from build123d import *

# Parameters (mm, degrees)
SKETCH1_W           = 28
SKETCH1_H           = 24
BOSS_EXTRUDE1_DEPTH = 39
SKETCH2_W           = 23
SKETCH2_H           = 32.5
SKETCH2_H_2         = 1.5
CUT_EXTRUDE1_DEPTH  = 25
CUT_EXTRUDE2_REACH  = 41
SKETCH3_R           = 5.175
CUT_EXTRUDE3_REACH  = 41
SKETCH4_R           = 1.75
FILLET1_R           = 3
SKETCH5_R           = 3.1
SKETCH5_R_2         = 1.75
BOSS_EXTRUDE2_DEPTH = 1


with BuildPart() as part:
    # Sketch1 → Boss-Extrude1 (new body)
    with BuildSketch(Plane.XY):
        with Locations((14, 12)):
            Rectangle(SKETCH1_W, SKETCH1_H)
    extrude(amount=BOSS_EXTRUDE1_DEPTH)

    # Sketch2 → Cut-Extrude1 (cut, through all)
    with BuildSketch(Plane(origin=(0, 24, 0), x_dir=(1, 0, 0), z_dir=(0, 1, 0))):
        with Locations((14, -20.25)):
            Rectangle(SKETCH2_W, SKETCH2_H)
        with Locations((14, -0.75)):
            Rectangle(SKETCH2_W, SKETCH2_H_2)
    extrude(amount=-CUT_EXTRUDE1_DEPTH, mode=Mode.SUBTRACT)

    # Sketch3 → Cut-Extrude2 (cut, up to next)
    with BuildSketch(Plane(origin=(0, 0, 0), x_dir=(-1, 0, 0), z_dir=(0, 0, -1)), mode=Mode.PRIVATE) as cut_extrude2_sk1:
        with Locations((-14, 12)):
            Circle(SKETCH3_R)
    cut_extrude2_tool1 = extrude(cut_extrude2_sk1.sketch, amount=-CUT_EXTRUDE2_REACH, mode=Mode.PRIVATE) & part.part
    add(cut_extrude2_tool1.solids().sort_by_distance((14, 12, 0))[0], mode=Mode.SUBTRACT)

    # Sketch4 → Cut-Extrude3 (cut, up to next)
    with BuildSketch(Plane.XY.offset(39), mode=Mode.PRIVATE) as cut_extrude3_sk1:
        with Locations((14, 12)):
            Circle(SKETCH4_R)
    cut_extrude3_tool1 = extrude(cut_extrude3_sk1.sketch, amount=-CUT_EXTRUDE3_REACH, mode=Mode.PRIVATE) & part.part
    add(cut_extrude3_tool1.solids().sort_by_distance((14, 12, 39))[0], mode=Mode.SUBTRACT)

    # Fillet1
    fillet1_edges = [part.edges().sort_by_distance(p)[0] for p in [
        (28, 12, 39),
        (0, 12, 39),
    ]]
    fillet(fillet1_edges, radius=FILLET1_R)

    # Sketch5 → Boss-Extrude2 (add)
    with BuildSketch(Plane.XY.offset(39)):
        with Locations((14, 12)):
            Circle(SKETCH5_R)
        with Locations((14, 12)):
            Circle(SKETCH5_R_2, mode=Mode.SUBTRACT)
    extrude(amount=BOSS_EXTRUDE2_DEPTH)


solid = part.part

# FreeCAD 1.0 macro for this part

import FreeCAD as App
import Part
import Sketcher

V = App.Vector


def edges_at(feature, points):
    """Names of the edges that pass closest to the given points."""
    edges = feature.Shape.Edges
    near = lambda p: min(range(len(edges)), key=lambda i: edges[i].distToShape(Part.Vertex(*p))[0])
    return sorted({f"Edge{near(p) + 1}" for p in points})


def add_polygon(sketch, points):
    """Adds a closed chain of lines whose ends are joined by coincident constraints."""
    first, n = sketch.GeometryCount, len(points)
    for a, b in zip(points, points[1:] + points[:1]):
        sketch.addGeometry(Part.LineSegment(App.Vector(*a, 0), App.Vector(*b, 0)), False)
    for i in range(n):
        sketch.addConstraint(Sketcher.Constraint("Coincident", first + i, 2, first + (i + 1) % n, 1))

doc = App.newDocument("Part")
body = doc.addObject("PartDesign::Body", "Body")

sketch1 = body.newObject("Sketcher::SketchObject", "Sketch")
sketch1.AttachmentSupport = (doc.getObject("XY_Plane"), [""])
sketch1.MapMode = "FlatFace"
add_polygon(sketch1, [(0, 24), (0, 0), (28, 0), (28, 24)])
sketch1.addConstraint(Sketcher.Constraint("Vertical", 0))
sketch1.addConstraint(Sketcher.Constraint("Horizontal", 1))
sketch1.addConstraint(Sketcher.Constraint("Vertical", 2))
sketch1.addConstraint(Sketcher.Constraint("Horizontal", 3))
sketch1.addConstraint(Sketcher.Constraint("Coincident", 0, 2, -1, 1))
sketch1.addConstraint(Sketcher.Constraint("DistanceX", 1, 1, 1, 2, 28.0))
sketch1.addConstraint(Sketcher.Constraint("DistanceY", 0, 2, 0, 1, 24.0))
pad1 = body.newObject("PartDesign::Pad", "Pad")
pad1.Profile = sketch1
pad1.Length = 39

sketch2 = body.newObject("Sketcher::SketchObject", "Sketch001")
sketch2.AttachmentSupport = (doc.getObject("XZ_Plane"), [""])
sketch2.MapMode = "FlatFace"
sketch2.AttachmentOffset = App.Placement(V(0, 0, -24), App.Rotation())
add_polygon(sketch2, [(2.5, 4), (2.5, 36.5), (25.5, 36.5), (25.5, 4)])
add_polygon(sketch2, [(2.5, 0), (2.5, 1.5), (25.5, 1.5), (25.5, 0)])
sketch2.addConstraint(Sketcher.Constraint("Vertical", 0))
sketch2.addConstraint(Sketcher.Constraint("Horizontal", 1))
sketch2.addConstraint(Sketcher.Constraint("Vertical", 2))
sketch2.addConstraint(Sketcher.Constraint("Horizontal", 3))
sketch2.addConstraint(Sketcher.Constraint("Vertical", 4))
sketch2.addConstraint(Sketcher.Constraint("Horizontal", 5))
sketch2.addConstraint(Sketcher.Constraint("Vertical", 6))
sketch2.addConstraint(Sketcher.Constraint("Horizontal", 7))
sketch2.addConstraint(Sketcher.Constraint("PointOnObject", 6, 2, -1))
sketch2.addConstraint(Sketcher.Constraint("Vertical", 3, 2, 4, 2))
sketch2.addConstraint(Sketcher.Constraint("Vertical", 2, 2, 5, 2))
sketch2.addConstraint(Sketcher.Constraint("DistanceX", 1, 1, 1, 2, 23.0))
sketch2.addConstraint(Sketcher.Constraint("DistanceY", 0, 1, 0, 2, 32.5))
sketch2.addConstraint(Sketcher.Constraint("DistanceY", 4, 1, 4, 2, 1.5))
sketch2.addConstraint(Sketcher.Constraint("DistanceY", -1, 1, 2, 2, 4.0))
sketch2.addConstraint(Sketcher.Constraint("DistanceX", -1, 1, 0, 2, 2.5))
pocket1 = body.newObject("PartDesign::Pocket", "Pocket")
pocket1.Profile = sketch2
pocket1.Type = "ThroughAll"
pocket1.Reversed = True

sketch3 = body.newObject("Sketcher::SketchObject", "Sketch002")
sketch3.AttachmentSupport = (doc.getObject("XY_Plane"), [""])
sketch3.MapMode = "FlatFace"
sketch3.addGeometry(Part.Circle(V(14, 12, 0), V(0, 0, 1), 5.175), False)
sketch3.addConstraint(Sketcher.Constraint("Diameter", 0, 10.35))
sketch3.addConstraint(Sketcher.Constraint("DistanceX", -1, 1, 0, 3, 14.0))
sketch3.addConstraint(Sketcher.Constraint("DistanceY", -1, 1, 0, 3, 12.0))
pocket2 = body.newObject("PartDesign::Pocket", "Pocket001")
pocket2.Profile = sketch3
pocket2.Length = 4
pocket2.Reversed = True

sketch4 = body.newObject("Sketcher::SketchObject", "Sketch003")
sketch4.AttachmentSupport = (doc.getObject("XY_Plane"), [""])
sketch4.MapMode = "FlatFace"
sketch4.AttachmentOffset = App.Placement(V(0, 0, 39), App.Rotation())
sketch4.addGeometry(Part.Circle(V(14, 12, 0), V(0, 0, 1), 1.75), False)
sketch4.addConstraint(Sketcher.Constraint("Diameter", 0, 3.5))
sketch4.addConstraint(Sketcher.Constraint("DistanceX", -1, 1, 0, 3, 14.0))
sketch4.addConstraint(Sketcher.Constraint("DistanceY", -1, 1, 0, 3, 12.0))
pocket3 = body.newObject("PartDesign::Pocket", "Pocket002")
pocket3.Profile = sketch4
pocket3.Type = "UpToFirst"
doc.recompute()

fillet = body.newObject("PartDesign::Fillet", "Fillet")
fillet.Base = (pocket3, edges_at(pocket3, [(28, 12, 39), (0, 12, 39)]))
fillet.Radius = 3

sketch5 = body.newObject("Sketcher::SketchObject", "Sketch004")
sketch5.AttachmentSupport = (doc.getObject("XY_Plane"), [""])
sketch5.MapMode = "FlatFace"
sketch5.AttachmentOffset = App.Placement(V(0, 0, 39), App.Rotation())
sketch5.addGeometry(Part.Circle(V(14, 12, 0), V(0, 0, 1), 3.1), False)
sketch5.addGeometry(Part.Circle(V(14, 12, 0), V(0, 0, 1), 1.75), False)
sketch5.addConstraint(Sketcher.Constraint("Coincident", 1, 3, 0, 3))
sketch5.addConstraint(Sketcher.Constraint("Diameter", 0, 6.2))
sketch5.addConstraint(Sketcher.Constraint("Diameter", 1, 3.5))
sketch5.addConstraint(Sketcher.Constraint("DistanceX", -1, 1, 0, 3, 14.0))
sketch5.addConstraint(Sketcher.Constraint("DistanceY", -1, 1, 0, 3, 12.0))
pad2 = body.newObject("PartDesign::Pad", "Pad001")
pad2.Profile = sketch5
pad2.Length = 1

doc.recompute()
